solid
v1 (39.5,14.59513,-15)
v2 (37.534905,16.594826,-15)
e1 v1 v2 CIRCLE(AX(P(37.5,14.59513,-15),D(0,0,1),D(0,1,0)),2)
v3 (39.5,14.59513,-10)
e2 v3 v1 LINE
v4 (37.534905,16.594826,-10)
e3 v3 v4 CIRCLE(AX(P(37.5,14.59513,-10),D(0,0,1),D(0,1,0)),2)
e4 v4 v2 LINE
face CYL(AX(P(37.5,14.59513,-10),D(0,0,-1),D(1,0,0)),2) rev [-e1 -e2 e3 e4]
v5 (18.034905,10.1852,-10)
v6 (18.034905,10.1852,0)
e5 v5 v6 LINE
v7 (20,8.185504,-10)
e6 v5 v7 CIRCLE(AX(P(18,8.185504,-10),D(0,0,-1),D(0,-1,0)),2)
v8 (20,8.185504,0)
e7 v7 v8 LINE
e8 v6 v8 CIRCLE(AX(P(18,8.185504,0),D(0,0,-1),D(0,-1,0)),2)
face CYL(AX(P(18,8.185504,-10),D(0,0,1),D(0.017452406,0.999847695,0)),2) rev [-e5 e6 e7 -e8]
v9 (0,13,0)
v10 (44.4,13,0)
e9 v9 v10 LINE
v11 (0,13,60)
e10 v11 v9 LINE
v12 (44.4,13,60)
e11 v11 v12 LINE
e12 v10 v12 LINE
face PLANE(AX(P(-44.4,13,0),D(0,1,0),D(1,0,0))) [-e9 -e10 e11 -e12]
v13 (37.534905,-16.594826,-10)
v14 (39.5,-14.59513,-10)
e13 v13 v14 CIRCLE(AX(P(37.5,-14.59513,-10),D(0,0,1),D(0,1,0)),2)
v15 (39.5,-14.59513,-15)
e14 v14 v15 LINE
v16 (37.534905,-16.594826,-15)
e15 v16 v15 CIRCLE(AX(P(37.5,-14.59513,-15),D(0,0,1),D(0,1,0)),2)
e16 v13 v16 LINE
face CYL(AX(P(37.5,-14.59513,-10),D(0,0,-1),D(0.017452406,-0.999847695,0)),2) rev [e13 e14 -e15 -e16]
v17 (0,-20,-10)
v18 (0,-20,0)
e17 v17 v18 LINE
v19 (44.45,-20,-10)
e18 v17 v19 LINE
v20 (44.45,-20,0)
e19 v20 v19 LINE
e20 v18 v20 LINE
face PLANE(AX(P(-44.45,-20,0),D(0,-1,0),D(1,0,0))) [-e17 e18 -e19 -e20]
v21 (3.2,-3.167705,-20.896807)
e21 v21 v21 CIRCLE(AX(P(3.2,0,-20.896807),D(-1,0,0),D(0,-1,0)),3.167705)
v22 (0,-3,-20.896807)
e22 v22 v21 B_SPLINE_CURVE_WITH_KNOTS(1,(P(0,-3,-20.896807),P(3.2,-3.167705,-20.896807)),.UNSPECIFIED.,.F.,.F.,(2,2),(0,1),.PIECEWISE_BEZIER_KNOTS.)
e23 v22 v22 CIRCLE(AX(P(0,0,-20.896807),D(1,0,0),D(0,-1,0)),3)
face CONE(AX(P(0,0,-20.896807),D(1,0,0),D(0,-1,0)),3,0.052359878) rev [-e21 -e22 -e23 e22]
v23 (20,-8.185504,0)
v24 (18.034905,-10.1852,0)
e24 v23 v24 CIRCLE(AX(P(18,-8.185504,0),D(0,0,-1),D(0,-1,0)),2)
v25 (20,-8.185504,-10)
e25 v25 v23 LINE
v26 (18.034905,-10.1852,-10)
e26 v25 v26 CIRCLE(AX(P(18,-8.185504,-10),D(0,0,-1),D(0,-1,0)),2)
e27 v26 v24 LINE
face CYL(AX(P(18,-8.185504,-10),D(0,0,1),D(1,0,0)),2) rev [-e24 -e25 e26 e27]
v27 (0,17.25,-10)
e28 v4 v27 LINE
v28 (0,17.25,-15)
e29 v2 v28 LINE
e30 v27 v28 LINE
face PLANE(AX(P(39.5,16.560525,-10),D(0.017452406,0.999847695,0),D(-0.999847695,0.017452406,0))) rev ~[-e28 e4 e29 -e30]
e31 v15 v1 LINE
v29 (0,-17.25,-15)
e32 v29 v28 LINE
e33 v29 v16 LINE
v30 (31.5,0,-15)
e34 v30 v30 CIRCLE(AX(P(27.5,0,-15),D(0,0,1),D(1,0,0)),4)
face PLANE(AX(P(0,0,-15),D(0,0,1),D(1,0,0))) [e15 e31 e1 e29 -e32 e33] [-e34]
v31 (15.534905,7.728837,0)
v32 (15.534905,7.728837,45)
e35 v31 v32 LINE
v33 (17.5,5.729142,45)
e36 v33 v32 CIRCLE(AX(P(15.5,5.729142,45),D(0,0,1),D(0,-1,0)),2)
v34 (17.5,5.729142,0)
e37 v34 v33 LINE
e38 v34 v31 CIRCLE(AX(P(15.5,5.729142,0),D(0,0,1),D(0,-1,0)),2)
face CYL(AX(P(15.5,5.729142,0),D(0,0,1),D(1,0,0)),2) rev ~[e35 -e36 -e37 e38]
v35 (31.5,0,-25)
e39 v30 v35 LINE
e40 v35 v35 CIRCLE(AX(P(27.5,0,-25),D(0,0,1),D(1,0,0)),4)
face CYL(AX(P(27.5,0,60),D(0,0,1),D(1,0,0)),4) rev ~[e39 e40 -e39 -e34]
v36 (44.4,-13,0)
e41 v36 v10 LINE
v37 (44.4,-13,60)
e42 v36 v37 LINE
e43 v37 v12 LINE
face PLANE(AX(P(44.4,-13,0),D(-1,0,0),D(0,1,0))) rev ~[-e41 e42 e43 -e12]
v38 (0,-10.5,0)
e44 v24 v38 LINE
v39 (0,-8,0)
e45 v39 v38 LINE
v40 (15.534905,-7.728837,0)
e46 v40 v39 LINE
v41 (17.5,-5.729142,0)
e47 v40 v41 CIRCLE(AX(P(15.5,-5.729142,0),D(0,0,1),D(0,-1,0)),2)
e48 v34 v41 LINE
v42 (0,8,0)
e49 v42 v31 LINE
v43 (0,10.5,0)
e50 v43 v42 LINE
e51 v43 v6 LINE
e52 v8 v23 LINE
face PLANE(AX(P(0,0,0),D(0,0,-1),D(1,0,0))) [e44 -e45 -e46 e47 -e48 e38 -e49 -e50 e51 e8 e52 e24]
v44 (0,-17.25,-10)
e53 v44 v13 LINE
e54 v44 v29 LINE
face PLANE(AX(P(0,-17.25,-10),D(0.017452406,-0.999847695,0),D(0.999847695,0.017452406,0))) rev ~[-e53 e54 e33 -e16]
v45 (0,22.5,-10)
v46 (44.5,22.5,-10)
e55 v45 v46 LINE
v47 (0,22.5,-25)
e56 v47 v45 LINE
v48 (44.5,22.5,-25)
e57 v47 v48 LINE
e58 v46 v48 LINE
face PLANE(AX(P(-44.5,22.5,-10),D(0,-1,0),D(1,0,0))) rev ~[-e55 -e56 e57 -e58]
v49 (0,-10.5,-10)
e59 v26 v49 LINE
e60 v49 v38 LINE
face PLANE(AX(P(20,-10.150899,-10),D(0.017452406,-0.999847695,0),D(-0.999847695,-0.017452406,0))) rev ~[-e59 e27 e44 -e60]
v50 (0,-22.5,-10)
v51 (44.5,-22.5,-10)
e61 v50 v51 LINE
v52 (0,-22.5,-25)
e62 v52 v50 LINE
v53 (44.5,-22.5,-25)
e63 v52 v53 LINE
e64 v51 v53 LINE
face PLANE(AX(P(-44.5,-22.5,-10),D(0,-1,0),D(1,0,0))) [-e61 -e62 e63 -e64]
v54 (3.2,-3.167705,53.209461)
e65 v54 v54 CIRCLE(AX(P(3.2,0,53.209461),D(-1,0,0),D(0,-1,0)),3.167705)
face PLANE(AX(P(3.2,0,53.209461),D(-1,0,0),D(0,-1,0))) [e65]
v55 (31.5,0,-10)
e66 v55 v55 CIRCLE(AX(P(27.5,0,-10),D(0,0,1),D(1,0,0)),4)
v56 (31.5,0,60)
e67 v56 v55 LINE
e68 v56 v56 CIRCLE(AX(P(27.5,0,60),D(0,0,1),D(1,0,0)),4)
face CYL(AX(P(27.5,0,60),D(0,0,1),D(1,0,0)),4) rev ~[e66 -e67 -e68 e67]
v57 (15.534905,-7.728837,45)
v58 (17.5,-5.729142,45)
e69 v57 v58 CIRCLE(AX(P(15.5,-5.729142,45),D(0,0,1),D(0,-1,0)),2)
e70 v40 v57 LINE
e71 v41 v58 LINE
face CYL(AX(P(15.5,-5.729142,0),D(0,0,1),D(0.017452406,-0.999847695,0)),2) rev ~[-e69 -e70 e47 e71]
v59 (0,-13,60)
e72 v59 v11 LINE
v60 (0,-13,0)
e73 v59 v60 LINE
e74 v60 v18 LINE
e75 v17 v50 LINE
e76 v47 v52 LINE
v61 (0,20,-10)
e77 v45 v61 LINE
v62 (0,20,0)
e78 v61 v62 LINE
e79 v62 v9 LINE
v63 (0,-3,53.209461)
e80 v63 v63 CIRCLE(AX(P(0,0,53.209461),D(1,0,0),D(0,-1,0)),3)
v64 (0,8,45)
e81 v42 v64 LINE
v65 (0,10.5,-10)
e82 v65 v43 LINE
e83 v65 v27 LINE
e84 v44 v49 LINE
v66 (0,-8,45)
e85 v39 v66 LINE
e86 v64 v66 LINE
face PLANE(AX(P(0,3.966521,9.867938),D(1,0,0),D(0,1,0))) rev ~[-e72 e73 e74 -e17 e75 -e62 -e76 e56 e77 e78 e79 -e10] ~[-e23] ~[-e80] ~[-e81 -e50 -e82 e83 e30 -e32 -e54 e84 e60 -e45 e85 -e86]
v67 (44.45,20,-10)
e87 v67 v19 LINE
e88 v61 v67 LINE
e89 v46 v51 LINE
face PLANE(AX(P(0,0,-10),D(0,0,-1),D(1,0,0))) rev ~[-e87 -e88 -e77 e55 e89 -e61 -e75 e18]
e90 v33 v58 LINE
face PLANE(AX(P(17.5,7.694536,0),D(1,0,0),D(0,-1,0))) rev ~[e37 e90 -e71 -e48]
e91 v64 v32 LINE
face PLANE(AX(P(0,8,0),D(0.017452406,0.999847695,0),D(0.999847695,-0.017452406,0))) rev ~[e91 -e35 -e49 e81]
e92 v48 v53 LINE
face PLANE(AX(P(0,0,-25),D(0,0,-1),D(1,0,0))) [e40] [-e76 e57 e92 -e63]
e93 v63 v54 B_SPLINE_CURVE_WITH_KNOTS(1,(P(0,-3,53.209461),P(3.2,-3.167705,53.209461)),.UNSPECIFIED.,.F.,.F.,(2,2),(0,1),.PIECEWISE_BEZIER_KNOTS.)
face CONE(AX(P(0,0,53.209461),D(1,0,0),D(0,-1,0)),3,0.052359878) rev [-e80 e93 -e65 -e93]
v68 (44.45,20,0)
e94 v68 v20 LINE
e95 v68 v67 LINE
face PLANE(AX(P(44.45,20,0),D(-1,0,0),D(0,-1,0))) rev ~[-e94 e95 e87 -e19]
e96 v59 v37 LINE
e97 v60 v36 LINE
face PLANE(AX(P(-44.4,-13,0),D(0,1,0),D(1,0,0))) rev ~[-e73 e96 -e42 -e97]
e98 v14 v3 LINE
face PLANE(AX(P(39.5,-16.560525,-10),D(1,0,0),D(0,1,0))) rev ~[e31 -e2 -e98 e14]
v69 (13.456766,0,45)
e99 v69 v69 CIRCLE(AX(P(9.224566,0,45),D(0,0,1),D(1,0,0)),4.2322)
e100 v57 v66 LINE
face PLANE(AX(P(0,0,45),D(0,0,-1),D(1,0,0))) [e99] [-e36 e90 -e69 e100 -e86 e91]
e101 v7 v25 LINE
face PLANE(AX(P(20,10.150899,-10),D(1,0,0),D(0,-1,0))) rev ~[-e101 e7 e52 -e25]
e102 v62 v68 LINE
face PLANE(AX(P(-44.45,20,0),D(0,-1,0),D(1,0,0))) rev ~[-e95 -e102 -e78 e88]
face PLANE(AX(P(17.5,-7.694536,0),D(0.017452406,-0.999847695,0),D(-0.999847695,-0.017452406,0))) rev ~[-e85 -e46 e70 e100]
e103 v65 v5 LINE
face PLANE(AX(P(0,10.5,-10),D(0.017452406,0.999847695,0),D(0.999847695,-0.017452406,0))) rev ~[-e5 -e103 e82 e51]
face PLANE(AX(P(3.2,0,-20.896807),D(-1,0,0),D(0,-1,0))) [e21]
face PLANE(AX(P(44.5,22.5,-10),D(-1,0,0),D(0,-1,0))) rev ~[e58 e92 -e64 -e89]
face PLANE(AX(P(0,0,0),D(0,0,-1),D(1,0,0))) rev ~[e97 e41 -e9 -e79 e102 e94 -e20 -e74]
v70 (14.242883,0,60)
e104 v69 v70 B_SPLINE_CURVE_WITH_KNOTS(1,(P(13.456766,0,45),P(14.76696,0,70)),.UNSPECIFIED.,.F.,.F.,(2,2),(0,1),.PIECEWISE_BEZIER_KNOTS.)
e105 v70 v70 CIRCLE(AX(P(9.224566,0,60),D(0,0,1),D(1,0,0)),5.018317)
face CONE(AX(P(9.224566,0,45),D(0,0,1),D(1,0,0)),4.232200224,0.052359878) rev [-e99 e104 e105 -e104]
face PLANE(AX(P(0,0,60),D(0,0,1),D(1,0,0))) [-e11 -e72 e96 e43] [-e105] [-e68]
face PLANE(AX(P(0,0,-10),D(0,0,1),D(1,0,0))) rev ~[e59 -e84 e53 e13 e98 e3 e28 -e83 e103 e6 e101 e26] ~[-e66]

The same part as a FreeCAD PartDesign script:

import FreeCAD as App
import Part
import Sketcher

V = App.Vector
Q = App.Units.Quantity


def edges_at(feature, points):
    """Names of the edges that pass closest to the given points."""
    edges = feature.Shape.Edges
    near = lambda p: min(range(len(edges)), key=lambda i: edges[i].distToShape(Part.Vertex(*p))[0])
    return sorted({f"Edge{near(p) + 1}" for p in points})

doc = App.newDocument("Part")
body = doc.addObject("PartDesign::Body", "Body")

# Sketch on XY plane
sketch1 = body.newObject("Sketcher::SketchObject", "Sketch")
sketch1.AttachmentSupport = (doc.getObject("XY_Plane"), [""])
sketch1.MapMode = "FlatFace"
sketch1.addGeometry([
    Part.LineSegment(V(-44.4, 13, 0), V(-44.4, -13, 0)),
    Part.LineSegment(V(-44.4, -13, 0), V(44.4, -13, 0)),
    Part.LineSegment(V(44.4, -13, 0), V(44.4, 13, 0)),
    Part.LineSegment(V(44.4, 13, 0), V(-44.4, 13, 0)),
], False)
sketch1.addConstraint([
    Sketcher.Constraint("Coincident", 0, 2, 1, 1),
    Sketcher.Constraint("Coincident", 1, 2, 2, 1),
    Sketcher.Constraint("Coincident", 2, 2, 3, 1),
    Sketcher.Constraint("Coincident", 3, 2, 0, 1),
    Sketcher.Constraint("Vertical", 0),
    Sketcher.Constraint("Horizontal", 1),
    Sketcher.Constraint("Vertical", 2),
    Sketcher.Constraint("Horizontal", 3),
    Sketcher.Constraint("Symmetric", 0, 2, 2, 2, -1, 1),
    Sketcher.Constraint("DistanceY", 0, 2, 0, 1, Q("26 mm")),
    Sketcher.Constraint("DistanceX", 1, 1, 1, 2, Q("88.8 mm")),
])
pad1 = body.newObject("PartDesign::Pad", "Pad")
pad1.Profile = sketch1
pad1.Length = 60

# Sketch on XY plane
sketch2 = body.newObject("Sketcher::SketchObject", "Sketch001")
sketch2.AttachmentSupport = (doc.getObject("XY_Plane"), [""])
sketch2.MapMode = "FlatFace"
sketch2.addGeometry([
    Part.LineSegment(V(-17.5, 7.694536, 0), V(0, 8, 0)),  # 0
    Part.LineSegment(V(0, 8, 0), V(17.5, 7.694536, 0)),  # 1
    Part.LineSegment(V(17.5, 7.694536, 0), V(17.5, -7.694536, 0)),  # 2
    Part.LineSegment(V(17.5, -7.694536, 0), V(0, -8, 0)),  # 3
    Part.LineSegment(V(0, -8, 0), V(-17.5, -7.694536, 0)),  # 4
    Part.LineSegment(V(-17.5, -7.694536, 0), V(-17.5, 7.694536, 0)),  # 5
], False)
sketch2.addConstraint([
    Sketcher.Constraint("Coincident", 0, 2, 1, 1),
    Sketcher.Constraint("Coincident", 1, 2, 2, 1),
    Sketcher.Constraint("Coincident", 2, 2, 3, 1),
    Sketcher.Constraint("Coincident", 3, 2, 4, 1),
    Sketcher.Constraint("Coincident", 4, 2, 5, 1),
    Sketcher.Constraint("Coincident", 5, 2, 0, 1),
    Sketcher.Constraint("Vertical", 2),
    Sketcher.Constraint("Vertical", 5),
    Sketcher.Constraint("Symmetric", 0, 2, 3, 2, -1, 1),
    Sketcher.Constraint("Symmetric", 1, 2, 4, 2, -1, 1),
    Sketcher.Constraint("PointOnObject", 0, 2, -2),
    Sketcher.Constraint("Parallel", 0, 3),
    Sketcher.Constraint("Horizontal", 2, 2, 4, 2),
    Sketcher.Constraint("Angle", 0, Q("1 deg")),
    Sketcher.Constraint("DistanceY", -1, 1, 0, 2, Q("8 mm")),
    Sketcher.Constraint("DistanceX", 4, 2, 2, 2, Q("35 mm")),
])
pocket1 = body.newObject("PartDesign::Pocket", "Pocket")
pocket1.Profile = sketch2
pocket1.Length = 45
pocket1.Reversed = True
doc.recompute()

fillet = body.newObject("PartDesign::Fillet", "Fillet")
fillet.Base = (pocket1, edges_at(pocket1, [
    (-17.5, 7.695, 22.5),
    (-17.5, -7.695, 22.5),
    (17.5, -7.695, 22.5),
    (17.5, 7.695, 22.5),
]))
fillet.Radius = 2

# Sketch on XY plane
sketch3 = body.newObject("Sketcher::SketchObject", "Sketch002")
sketch3.AttachmentSupport = (doc.getObject("XY_Plane"), [""])
sketch3.MapMode = "FlatFace"
sketch3.addGeometry([
    Part.LineSegment(V(-44.45, -20, 0), V(-44.45, 20, 0)),
    Part.LineSegment(V(-44.45, 20, 0), V(44.45, 20, 0)),
    Part.LineSegment(V(44.45, 20, 0), V(44.45, -20, 0)),
    Part.LineSegment(V(44.45, -20, 0), V(-44.45, -20, 0)),
], False)
sketch3.addConstraint([
    Sketcher.Constraint("Coincident", 0, 2, 1, 1),
    Sketcher.Constraint("Coincident", 1, 2, 2, 1),
    Sketcher.Constraint("Coincident", 2, 2, 3, 1),
    Sketcher.Constraint("Coincident", 3, 2, 0, 1),
    Sketcher.Constraint("Vertical", 0),
    Sketcher.Constraint("Horizontal", 1),
    Sketcher.Constraint("Vertical", 2),
    Sketcher.Constraint("Horizontal", 3),
    Sketcher.Constraint("Symmetric", 0, 2, 2, 2, -1, 1),
    Sketcher.Constraint("DistanceY", 0, 1, 0, 2, Q("40 mm")),
    Sketcher.Constraint("DistanceX", 1, 1, 1, 2, Q("88.9 mm")),
])
pad2 = body.newObject("PartDesign::Pad", "Pad001")
pad2.Profile = sketch3
pad2.Length = 10
pad2.Reversed = True

# Sketch on XY plane
sketch4 = body.newObject("Sketcher::SketchObject", "Sketch003")
sketch4.AttachmentSupport = (doc.getObject("XY_Plane"), [""])
sketch4.MapMode = "FlatFace"
sketch4.AttachmentOffset = App.Placement(V(0, 0, -10), App.Rotation())
sketch4.addGeometry([
    Part.LineSegment(V(-20, 10.150899, 0), V(0, 10.5, 0)),  # 0
    Part.LineSegment(V(0, 10.5, 0), V(20, 10.150899, 0)),  # 1
    Part.LineSegment(V(20, 10.150899, 0), V(20, -10.150899, 0)),  # 2
    Part.LineSegment(V(20, -10.150899, 0), V(0, -10.5, 0)),  # 3
    Part.LineSegment(V(0, -10.5, 0), V(-20, -10.150899, 0)),  # 4
    Part.LineSegment(V(-20, -10.150899, 0), V(-20, 10.150899, 0)),  # 5
], False)
sketch4.addConstraint([
    Sketcher.Constraint("Coincident", 0, 2, 1, 1),
    Sketcher.Constraint("Coincident", 1, 2, 2, 1),
    Sketcher.Constraint("Coincident", 2, 2, 3, 1),
    Sketcher.Constraint("Coincident", 3, 2, 4, 1),
    Sketcher.Constraint("Coincident", 4, 2, 5, 1),
    Sketcher.Constraint("Coincident", 5, 2, 0, 1),
    Sketcher.Constraint("Vertical", 2),
    Sketcher.Constraint("Vertical", 5),
    Sketcher.Constraint("Symmetric", 0, 2, 3, 2, -1, 1),
    Sketcher.Constraint("Symmetric", 1, 2, 4, 2, -1, 1),
    Sketcher.Constraint("PointOnObject", 0, 2, -2),
    Sketcher.Constraint("Parallel", 0, 3),
    Sketcher.Constraint("Horizontal", 2, 2, 4, 2),
    Sketcher.Constraint("Angle", 0, Q("1 deg")),
    Sketcher.Constraint("DistanceX", -1, 1, 1, 2, Q("20 mm")),
    Sketcher.Constraint("DistanceY", 3, 2, 0, 2, Q("21 mm")),
])
pocket2 = body.newObject("PartDesign::Pocket", "Pocket001")
pocket2.Profile = sketch4
pocket2.Length = 10
pocket2.Reversed = True
doc.recompute()

fillet2 = body.newObject("PartDesign::Fillet", "Fillet001")
fillet2.Base = (pocket2, edges_at(pocket2, [
    (-20, 10.151, -5),
    (-20, -10.151, -5),
    (20, 10.151, -5),
    (20, -10.151, -5),
]))
fillet2.Radius = 2

# Sketch on XY plane
sketch5 = body.newObject("Sketcher::SketchObject", "Sketch004")
sketch5.AttachmentSupport = (doc.getObject("XY_Plane"), [""])
sketch5.MapMode = "FlatFace"
sketch5.AttachmentOffset = App.Placement(V(0, 0, -10), App.Rotation())
sketch5.addGeometry([
    Part.LineSegment(V(-44.5, -22.5, 0), V(-44.5, 22.5, 0)),
    Part.LineSegment(V(-44.5, 22.5, 0), V(44.5, 22.5, 0)),
    Part.LineSegment(V(44.5, 22.5, 0), V(44.5, -22.5, 0)),
    Part.LineSegment(V(44.5, -22.5, 0), V(-44.5, -22.5, 0)),
], False)
sketch5.addConstraint([
    Sketcher.Constraint("Coincident", 0, 2, 1, 1),
    Sketcher.Constraint("Coincident", 1, 2, 2, 1),
    Sketcher.Constraint("Coincident", 2, 2, 3, 1),
    Sketcher.Constraint("Coincident", 3, 2, 0, 1),
    Sketcher.Constraint("Vertical", 0),
    Sketcher.Constraint("Horizontal", 1),
    Sketcher.Constraint("Vertical", 2),
    Sketcher.Constraint("Horizontal", 3),
    Sketcher.Constraint("Symmetric", 0, 2, 2, 2, -1, 1),
    Sketcher.Constraint("DistanceX", 1, 1, 1, 2, Q("89 mm")),
    Sketcher.Constraint("DistanceY", 0, 1, 0, 2, Q("45 mm")),
])
pad3 = body.newObject("PartDesign::Pad", "Pad002")
pad3.Profile = sketch5
pad3.Length = 15
pad3.Reversed = True

# Sketch on XY plane
sketch6 = body.newObject("Sketcher::SketchObject", "Sketch005")
sketch6.AttachmentSupport = (doc.getObject("XY_Plane"), [""])
sketch6.MapMode = "FlatFace"
sketch6.AttachmentOffset = App.Placement(V(0, 0, -10), App.Rotation())
sketch6.addGeometry([
    Part.LineSegment(V(-39.5, -16.560525, 0), V(0, -17.25, 0)),  # 0
    Part.LineSegment(V(0, -17.25, 0), V(39.5, -16.560525, 0)),  # 1
    Part.LineSegment(V(39.5, -16.560525, 0), V(39.5, 16.560525, 0)),  # 2
    Part.LineSegment(V(39.5, 16.560525, 0), V(0, 17.25, 0)),  # 3
    Part.LineSegment(V(0, 17.25, 0), V(-39.5, 16.560525, 0)),  # 4
    Part.LineSegment(V(-39.5, 16.560525, 0), V(-39.5, -16.560525, 0)),  # 5
], False)
sketch6.addConstraint([
    Sketcher.Constraint("Coincident", 0, 2, 1, 1),
    Sketcher.Constraint("Coincident", 1, 2, 2, 1),
    Sketcher.Constraint("Coincident", 2, 2, 3, 1),
    Sketcher.Constraint("Coincident", 3, 2, 4, 1),
    Sketcher.Constraint("Coincident", 4, 2, 5, 1),
    Sketcher.Constraint("Coincident", 5, 2, 0, 1),
    Sketcher.Constraint("Vertical", 2),
    Sketcher.Constraint("Vertical", 5),
    Sketcher.Constraint("Symmetric", 0, 2, 3, 2, -1, 1),
    Sketcher.Constraint("Symmetric", 1, 2, 4, 2, -1, 1),
    Sketcher.Constraint("PointOnObject", 0, 2, -2),
    Sketcher.Constraint("Parallel", 0, 3),
    Sketcher.Constraint("Horizontal", 2, 2, 4, 2),
    Sketcher.Constraint("Angle", 0, Q("-1 deg")),
    Sketcher.Constraint("DistanceX", 4, 2, 2, 2, Q("79 mm")),
    Sketcher.Constraint("DistanceY", 0, 2, 3, 2, Q("34.5 mm")),
])
pocket3 = body.newObject("PartDesign::Pocket", "Pocket002")
pocket3.Profile = sketch6
pocket3.Length = 5
doc.recompute()

fillet3 = body.newObject("PartDesign::Fillet", "Fillet002")
fillet3.Base = (pocket3, edges_at(pocket3, [
    (-39.5, 16.561, -12.5),
    (-39.5, -16.561, -12.5),
    (39.5, -16.561, -12.5),
    (39.5, 16.561, -12.5),
]))
fillet3.Radius = 2

# Sketch on XY plane
sketch7 = body.newObject("Sketcher::SketchObject", "Sketch006")
sketch7.AttachmentSupport = (doc.getObject("XY_Plane"), [""])
sketch7.MapMode = "FlatFace"
sketch7.AttachmentOffset = App.Placement(V(0, 0, 60), App.Rotation())
sketch7.addGeometry([
    Part.Circle(V(-27.5, 0, 0), V(0, 0, 1), 4.672311),
    Part.Circle(V(27.5, 0, 0), V(0, 0, 1), 4),
], False)
sketch7.addConstraint([
    Sketcher.Constraint("Symmetric", 0, 3, 1, 3, -1, 1),
    Sketcher.Constraint("PointOnObject", 0, 3, -1),
    Sketcher.Constraint("Diameter", 1, Q("8 mm")),
    Sketcher.Constraint("DistanceX", 0, 3, 1, 3, Q("55 mm")),
    Sketcher.Constraint("Diameter", 0, Q("9.344622 mm")),
])
pocket4 = body.newObject("PartDesign::Pocket", "Pocket003")
pocket4.Profile = sketch7
pocket4.Type = "ThroughAll"

# Sketch on YZ plane
sketch8 = body.newObject("Sketcher::SketchObject", "Sketch007")
sketch8.AttachmentSupport = (doc.getObject("YZ_Plane"), [""])
sketch8.MapMode = "FlatFace"
sketch8.addGeometry([
    Part.LineSegment(V(-35.795458, 69.269046, 0), V(-35.795458, -49.53317, 0)),
    Part.LineSegment(V(-35.795458, -49.53317, 0), V(43.728501, -49.53317, 0)),
    Part.LineSegment(V(43.728501, -49.53317, 0), V(43.728501, 69.269046, 0)),
    Part.LineSegment(V(43.728501, 69.269046, 0), V(-35.795458, 69.269046, 0)),
], False)
sketch8.addConstraint([
    Sketcher.Constraint("Coincident", 0, 2, 1, 1),
    Sketcher.Constraint("Coincident", 1, 2, 2, 1),
    Sketcher.Constraint("Coincident", 2, 2, 3, 1),
    Sketcher.Constraint("Coincident", 3, 2, 0, 1),
    Sketcher.Constraint("Vertical", 0),
    Sketcher.Constraint("Horizontal", 1),
    Sketcher.Constraint("Vertical", 2),
    Sketcher.Constraint("Horizontal", 3),
    Sketcher.Constraint("DistanceX", 1, 1, 1, 2, Q("79.523958 mm")),
    Sketcher.Constraint("DistanceX", -1, 1, 1, 2, Q("43.728501 mm")),
    Sketcher.Constraint("DistanceY", 0, 2, 0, 1, Q("118.802216 mm")),
    Sketcher.Constraint("DistanceY", 0, 2, -1, 1, Q("49.53317 mm")),
])
pocket5 = body.newObject("PartDesign::Pocket", "Pocket004")
pocket5.Profile = sketch8
pocket5.Length = 80

# Sketch on YZ plane
sketch9 = body.newObject("Sketcher::SketchObject", "Sketch008")
sketch9.AttachmentSupport = (doc.getObject("YZ_Plane"), [""])
sketch9.MapMode = "FlatFace"
sketch9.addGeometry([
    Part.Circle(V(0, 53.209461, 0), V(0, 0, 1), 3),
    Part.Circle(V(0, -20.896807, 0), V(0, 0, 1), 3),
], False)
sketch9.addConstraint([
    Sketcher.Constraint("Equal", 0, 1),
    Sketcher.Constraint("PointOnObject", 0, 3, -2),
    Sketcher.Constraint("PointOnObject", 1, 3, -2),
    Sketcher.Constraint("Diameter", 0, Q("6 mm")),
    Sketcher.Constraint("DistanceY", -1, 1, 0, 3, Q("53.209461 mm")),
    Sketcher.Constraint("DistanceY", 1, 3, 0, 3, Q("74.106269 mm")),
])
pocket6 = body.newObject("PartDesign::Pocket", "Pocket005")
pocket6.Profile = sketch9
pocket6.Length = 3.2
pocket6.Reversed = True
pocket6.TaperAngle = 3

# Sketch on XY plane
sketch10 = body.newObject("Sketcher::SketchObject", "Sketch009")
sketch10.AttachmentSupport = (doc.getObject("XY_Plane"), [""])
sketch10.MapMode = "FlatFace"
sketch10.AttachmentOffset = App.Placement(V(0, 0, 45), App.Rotation())
sketch10.addGeometry(Part.Circle(V(9.224566, 0, 0), V(0, 0, 1), 4.2322), False)
sketch10.addConstraint([
    Sketcher.Constraint("PointOnObject", 0, 3, -1),
    Sketcher.Constraint("Diameter", 0, Q("8.4644 mm")),
    Sketcher.Constraint("DistanceX", -1, 1, 0, 3, Q("9.224566 mm")),
])
pocket7 = body.newObject("PartDesign::Pocket", "Pocket006")
pocket7.Profile = sketch10
pocket7.Length = 25
pocket7.Reversed = True
pocket7.TaperAngle = 3

doc.recompute()
